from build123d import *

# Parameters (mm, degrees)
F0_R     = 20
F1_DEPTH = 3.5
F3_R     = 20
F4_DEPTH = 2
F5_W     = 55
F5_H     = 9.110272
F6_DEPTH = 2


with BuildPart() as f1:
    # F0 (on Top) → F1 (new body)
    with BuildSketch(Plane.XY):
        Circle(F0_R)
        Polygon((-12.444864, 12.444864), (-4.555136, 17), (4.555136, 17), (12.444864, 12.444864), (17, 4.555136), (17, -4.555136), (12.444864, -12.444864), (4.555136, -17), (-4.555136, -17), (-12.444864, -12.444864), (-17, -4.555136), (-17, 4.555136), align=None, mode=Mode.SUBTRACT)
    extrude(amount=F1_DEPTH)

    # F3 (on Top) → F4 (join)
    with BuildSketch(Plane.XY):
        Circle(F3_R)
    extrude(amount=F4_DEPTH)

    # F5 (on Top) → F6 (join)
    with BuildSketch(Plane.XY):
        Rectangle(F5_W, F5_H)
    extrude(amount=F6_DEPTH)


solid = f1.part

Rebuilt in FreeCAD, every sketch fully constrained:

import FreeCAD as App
import Part
import Sketcher

V = App.Vector
Q = App.Units.Quantity

doc = App.newDocument("Part")
body = doc.addObject("PartDesign::Body", "Body")

# Sketch on XY plane
sketch1 = body.newObject("Sketcher::SketchObject", "Sketch")
sketch1.AttachmentSupport = (doc.getObject("XY_Plane"), [""])
sketch1.MapMode = "FlatFace"
sketch1.addGeometry(Part.Circle(V(0, 0, 0), V(0, 0, 1), 20), False)
sketch1.addGeometry(Part.LineSegment(V(-17, 5, 0), V(-12, 12, 0)), False)
sketch1.addGeometry(Part.LineSegment(V(-12, 12, 0), V(-5, 17, 0)), False)
sketch1.addGeometry(Part.LineSegment(V(-5, 17, 0), V(5, 17, 0)), False)
sketch1.addGeometry(Part.LineSegment(V(5, 17, 0), V(12, 12, 0)), False)
sketch1.addGeometry(Part.LineSegment(V(12, 12, 0), V(17, 5, 0)), False)
sketch1.addGeometry(Part.LineSegment(V(17, 5, 0), V(17, -5, 0)), False)
sketch1.addGeometry(Part.LineSegment(V(17, -5, 0), V(12, -12, 0)), False)
sketch1.addGeometry(Part.LineSegment(V(12, -12, 0), V(5, -17, 0)), False)
sketch1.addGeometry(Part.LineSegment(V(5, -17, 0), V(-5, -17, 0)), False)
sketch1.addGeometry(Part.LineSegment(V(-5, -17, 0), V(-12, -12, 0)), False)
sketch1.addGeometry(Part.LineSegment(V(-12, -12, 0), V(-17, -5, 0)), False)
sketch1.addGeometry(Part.LineSegment(V(-17, -5, 0), V(-17, 5, 0)), False)
sketch1.addConstraint(Sketcher.Constraint("Coincident", 1, 2, 2, 1))
sketch1.addConstraint(Sketcher.Constraint("Coincident", 2, 2, 3, 1))
sketch1.addConstraint(Sketcher.Constraint("Coincident", 3, 2, 4, 1))
sketch1.addConstraint(Sketcher.Constraint("Coincident", 4, 2, 5, 1))
sketch1.addConstraint(Sketcher.Constraint("Coincident", 5, 2, 6, 1))
sketch1.addConstraint(Sketcher.Constraint("Coincident", 6, 2, 7, 1))
sketch1.addConstraint(Sketcher.Constraint("Coincident", 7, 2, 8, 1))
sketch1.addConstraint(Sketcher.Constraint("Coincident", 8, 2, 9, 1))
sketch1.addConstraint(Sketcher.Constraint("Coincident", 9, 2, 10, 1))
sketch1.addConstraint(Sketcher.Constraint("Coincident", 10, 2, 11, 1))
sketch1.addConstraint(Sketcher.Constraint("Coincident", 11, 2, 12, 1))
sketch1.addConstraint(Sketcher.Constraint("Coincident", 12, 2, 1, 1))
sketch1.addConstraint(Sketcher.Constraint("Horizontal", 3))
sketch1.addConstraint(Sketcher.Constraint("Vertical", 6))
sketch1.addConstraint(Sketcher.Constraint("Horizontal", 9))
sketch1.addConstraint(Sketcher.Constraint("Vertical", 12))
sketch1.addConstraint(Sketcher.Constraint("Coincident", 0, 3, -1, 1))
sketch1.addConstraint(Sketcher.Constraint("Symmetric", 1, 2, 7, 2, -1, 1))
sketch1.addConstraint(Sketcher.Constraint("Symmetric", 2, 2, 8, 2, -1, 1))
sketch1.addConstraint(Sketcher.Constraint("Symmetric", 4, 2, 10, 2, -1, 1))
sketch1.addConstraint(Sketcher.Constraint("Symmetric", 5, 2, 11, 2, -1, 1))
sketch1.addConstraint(Sketcher.Constraint("Symmetric", 1, 2, 4, 2, -2))
sketch1.addConstraint(Sketcher.Constraint("Perpendicular", 1, 4))
sketch1.addConstraint(Sketcher.Constraint("Perpendicular", 2, 5))
sketch1.addConstraint(Sketcher.Constraint("Perpendicular", 4, 7))
sketch1.addConstraint(Sketcher.Constraint("Perpendicular", 7, 10))
sketch1.addConstraint(Sketcher.Constraint("Horizontal", 6, 2, 11, 2))
sketch1.addConstraint(Sketcher.Constraint("Equal", 9, 6))
sketch1.addConstraint(Sketcher.Constraint("Equal", 1, 2))
sketch1.addConstraint(Sketcher.Constraint("Diameter", 0, 40.0))
sketch1.addConstraint(Sketcher.Constraint("Angle", 1, Q("60.000003 deg")))
sketch1.addConstraint(Sketcher.Constraint("DistanceY", -1, 1, 2, 2, 17.0))
sketch1.addConstraint(Sketcher.Constraint("DistanceX", 1, 2, 3, 2, 17.0))
pad1 = body.newObject("PartDesign::Pad", "Pad")
pad1.Profile = sketch1
pad1.Length = 3.5

# Sketch on XY plane
sketch2 = body.newObject("Sketcher::SketchObject", "Sketch001")
sketch2.AttachmentSupport = (doc.getObject("XY_Plane"), [""])
sketch2.MapMode = "FlatFace"
sketch2.addGeometry(Part.Circle(V(0, 0, 0), V(0, 0, 1), 20), False)
sketch2.addConstraint(Sketcher.Constraint("Coincident", 0, 3, -1, 1))
sketch2.addConstraint(Sketcher.Constraint("Diameter", 0, 40.0))
pad2 = body.newObject("PartDesign::Pad", "Pad001")
pad2.Profile = sketch2
pad2.Length = 2

# Sketch on XY plane
sketch3 = body.newObject("Sketcher::SketchObject", "Sketch002")
sketch3.AttachmentSupport = (doc.getObject("XY_Plane"), [""])
sketch3.MapMode = "FlatFace"
sketch3.addGeometry(Part.LineSegment(V(-28, 5, 0), V(-28, -5, 0)), False)
sketch3.addGeometry(Part.LineSegment(V(-28, -5, 0), V(28, -5, 0)), False)
sketch3.addGeometry(Part.LineSegment(V(28, -5, 0), V(28, 5, 0)), False)
sketch3.addGeometry(Part.LineSegment(V(28, 5, 0), V(-28, 5, 0)), False)
sketch3.addConstraint(Sketcher.Constraint("Coincident", 0, 2, 1, 1))
sketch3.addConstraint(Sketcher.Constraint("Coincident", 1, 2, 2, 1))
sketch3.addConstraint(Sketcher.Constraint("Coincident", 2, 2, 3, 1))
sketch3.addConstraint(Sketcher.Constraint("Coincident", 3, 2, 0, 1))
sketch3.addConstraint(Sketcher.Constraint("Vertical", 0))
sketch3.addConstraint(Sketcher.Constraint("Horizontal", 1))
sketch3.addConstraint(Sketcher.Constraint("Vertical", 2))
sketch3.addConstraint(Sketcher.Constraint("Horizontal", 3))
sketch3.addConstraint(Sketcher.Constraint("Symmetric", 0, 2, 2, 2, -1, 1))
sketch3.addConstraint(Sketcher.Constraint("DistanceX", 1, 1, 1, 2, 55.0))
sketch3.addConstraint(Sketcher.Constraint("DistanceY", 0, 2, 0, 1, 9.110272))
pad3 = body.newObject("PartDesign::Pad", "Pad002")
pad3.Profile = sketch3
pad3.Length = 2

doc.recompute()
